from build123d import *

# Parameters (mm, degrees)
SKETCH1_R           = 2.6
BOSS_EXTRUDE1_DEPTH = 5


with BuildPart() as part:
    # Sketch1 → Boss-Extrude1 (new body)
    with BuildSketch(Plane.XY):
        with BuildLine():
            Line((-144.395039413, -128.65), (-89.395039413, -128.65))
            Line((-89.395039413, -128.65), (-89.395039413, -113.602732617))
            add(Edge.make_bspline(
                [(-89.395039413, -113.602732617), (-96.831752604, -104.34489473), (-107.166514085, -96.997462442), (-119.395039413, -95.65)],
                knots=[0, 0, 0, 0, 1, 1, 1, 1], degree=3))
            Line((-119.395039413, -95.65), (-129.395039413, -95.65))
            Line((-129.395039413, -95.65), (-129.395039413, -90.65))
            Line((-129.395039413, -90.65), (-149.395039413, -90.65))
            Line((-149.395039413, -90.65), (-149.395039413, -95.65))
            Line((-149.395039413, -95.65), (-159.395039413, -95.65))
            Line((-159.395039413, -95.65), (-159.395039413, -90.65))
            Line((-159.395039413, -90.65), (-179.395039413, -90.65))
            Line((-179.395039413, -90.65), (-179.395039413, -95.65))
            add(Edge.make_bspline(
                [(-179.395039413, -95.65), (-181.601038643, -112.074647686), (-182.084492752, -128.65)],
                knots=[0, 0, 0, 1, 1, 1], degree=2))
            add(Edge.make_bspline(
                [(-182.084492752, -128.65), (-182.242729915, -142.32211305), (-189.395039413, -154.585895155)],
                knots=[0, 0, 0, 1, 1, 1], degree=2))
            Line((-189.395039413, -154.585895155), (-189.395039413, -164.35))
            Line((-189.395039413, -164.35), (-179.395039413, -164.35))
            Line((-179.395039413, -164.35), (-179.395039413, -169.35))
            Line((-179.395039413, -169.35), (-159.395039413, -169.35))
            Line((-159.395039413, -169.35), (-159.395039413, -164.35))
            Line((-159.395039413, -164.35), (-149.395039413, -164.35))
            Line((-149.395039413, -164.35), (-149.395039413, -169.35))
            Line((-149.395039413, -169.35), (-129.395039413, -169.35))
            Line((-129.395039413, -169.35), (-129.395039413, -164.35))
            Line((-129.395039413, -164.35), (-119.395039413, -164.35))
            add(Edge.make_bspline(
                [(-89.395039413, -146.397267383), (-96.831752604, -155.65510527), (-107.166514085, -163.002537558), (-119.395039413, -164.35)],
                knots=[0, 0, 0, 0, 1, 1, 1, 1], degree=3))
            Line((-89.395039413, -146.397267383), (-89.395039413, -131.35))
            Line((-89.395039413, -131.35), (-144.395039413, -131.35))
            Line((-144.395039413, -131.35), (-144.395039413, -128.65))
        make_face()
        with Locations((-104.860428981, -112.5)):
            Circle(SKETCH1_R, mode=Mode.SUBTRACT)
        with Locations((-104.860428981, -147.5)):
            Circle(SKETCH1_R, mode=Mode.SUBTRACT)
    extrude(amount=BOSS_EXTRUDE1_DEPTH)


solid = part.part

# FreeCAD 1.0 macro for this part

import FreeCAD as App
import Part
import Sketcher

V = App.Vector

doc = App.newDocument("Part")
body = doc.addObject("PartDesign::Body", "Body")

sketch1 = body.newObject("Sketcher::SketchObject", "Sketch")
sketch1.AttachmentSupport = (doc.getObject("XY_Plane"), [""])
sketch1.MapMode = "FlatFace"
sketch1.addGeometry([
    Part.LineSegment(V(-144.395039, -128.65, 0), V(-89.395039, -128.65, 0)),
    Part.LineSegment(V(-89.395039, -128.65, 0), V(-89.395039, -113.602733, 0)),
    Part.BSplineCurve([V(-89.395039, -113.602733, 0), V(-96.831753, -104.344895, 0), V(-107.166514, -96.997462, 0), V(-119.395039, -95.65, 0)], [4, 4], [0, 1], False, 3, [1, 1, 1, 1], False),
    Part.LineSegment(V(-119.395039, -95.65, 0), V(-129.395039, -95.65, 0)),
    Part.LineSegment(V(-129.395039, -95.65, 0), V(-129.395039, -90.65, 0)),
    Part.LineSegment(V(-129.395039, -90.65, 0), V(-149.395039, -90.65, 0)),
    Part.LineSegment(V(-149.395039, -90.65, 0), V(-149.395039, -95.65, 0)),
    Part.LineSegment(V(-149.395039, -95.65, 0), V(-159.395039, -95.65, 0)),
    Part.LineSegment(V(-159.395039, -95.65, 0), V(-159.395039, -90.65, 0)),
    Part.LineSegment(V(-159.395039, -90.65, 0), V(-179.395039, -90.65, 0)),
    Part.LineSegment(V(-179.395039, -90.65, 0), V(-179.395039, -95.65, 0)),
    Part.BSplineCurve([V(-179.395039, -95.65, 0), V(-181.601039, -112.074648, 0), V(-182.084493, -128.65, 0)], [3, 3], [0, 1], False, 2, [1, 1, 1], False),
    Part.BSplineCurve([V(-182.084493, -128.65, 0), V(-182.24273, -142.322113, 0), V(-189.395039, -154.585895, 0)], [3, 3], [0, 1], False, 2, [1, 1, 1], False),
    Part.LineSegment(V(-189.395039, -154.585895, 0), V(-189.395039, -164.35, 0)),
    Part.LineSegment(V(-189.395039, -164.35, 0), V(-179.395039, -164.35, 0)),
    Part.LineSegment(V(-179.395039, -164.35, 0), V(-179.395039, -169.35, 0)),
    Part.LineSegment(V(-179.395039, -169.35, 0), V(-159.395039, -169.35, 0)),
    Part.LineSegment(V(-159.395039, -169.35, 0), V(-159.395039, -164.35, 0)),
    Part.LineSegment(V(-159.395039, -164.35, 0), V(-149.395039, -164.35, 0)),
    Part.LineSegment(V(-149.395039, -164.35, 0), V(-149.395039, -169.35, 0)),
    Part.LineSegment(V(-149.395039, -169.35, 0), V(-129.395039, -169.35, 0)),
    Part.LineSegment(V(-129.395039, -169.35, 0), V(-129.395039, -164.35, 0)),
    Part.LineSegment(V(-129.395039, -164.35, 0), V(-119.395039, -164.35, 0)),
    Part.BSplineCurve([V(-89.395039, -146.397267, 0), V(-96.831753, -155.655105, 0), V(-107.166514, -163.002538, 0), V(-119.395039, -164.35, 0)], [4, 4], [0, 1], False, 3, [1, 1, 1, 1], False),
    Part.LineSegment(V(-89.395039, -146.397267, 0), V(-89.395039, -131.35, 0)),
    Part.LineSegment(V(-89.395039, -131.35, 0), V(-144.395039, -131.35, 0)),
    Part.LineSegment(V(-144.395039, -131.35, 0), V(-144.395039, -128.65, 0)),
    Part.Circle(V(-104.860429, -147.5, 0), V(0, 0, 1), 2.6),
    Part.Circle(V(-104.860429, -112.5, 0), V(0, 0, 1), 2.6),
], False)
sketch1.addConstraint([
    Sketcher.Constraint("Block", 2),
    Sketcher.Constraint("Block", 11),
    Sketcher.Constraint("Block", 12),
    Sketcher.Constraint("Block", 23),
    Sketcher.Constraint("Coincident", 0, 2, 1, 1),
    Sketcher.Constraint("Coincident", 1, 2, 2, 1),
    Sketcher.Constraint("Coincident", 2, 2, 3, 1),
    Sketcher.Constraint("Coincident", 3, 2, 4, 1),
    Sketcher.Constraint("Coincident", 4, 2, 5, 1),
    Sketcher.Constraint("Coincident", 5, 2, 6, 1),
    Sketcher.Constraint("Coincident", 6, 2, 7, 1),
    Sketcher.Constraint("Coincident", 7, 2, 8, 1),
    Sketcher.Constraint("Coincident", 8, 2, 9, 1),
    Sketcher.Constraint("Coincident", 9, 2, 10, 1),
    Sketcher.Constraint("Coincident", 10, 2, 11, 1),
    Sketcher.Constraint("Coincident", 12, 2, 13, 1),
    Sketcher.Constraint("Coincident", 13, 2, 14, 1),
    Sketcher.Constraint("Coincident", 14, 2, 15, 1),
    Sketcher.Constraint("Coincident", 15, 2, 16, 1),
    Sketcher.Constraint("Coincident", 16, 2, 17, 1),
    Sketcher.Constraint("Coincident", 17, 2, 18, 1),
    Sketcher.Constraint("Coincident", 18, 2, 19, 1),
    Sketcher.Constraint("Coincident", 19, 2, 20, 1),
    Sketcher.Constraint("Coincident", 20, 2, 21, 1),
    Sketcher.Constraint("Coincident", 21, 2, 22, 1),
    Sketcher.Constraint("Coincident", 22, 2, 23, 2),
    Sketcher.Constraint("Coincident", 23, 1, 24, 1),
    Sketcher.Constraint("Coincident", 24, 2, 25, 1),
    Sketcher.Constraint("Coincident", 25, 2, 26, 1),
    Sketcher.Constraint("Coincident", 26, 2, 0, 1),
    Sketcher.Constraint("Horizontal", 0),
    Sketcher.Constraint("Vertical", 1),
    Sketcher.Constraint("Horizontal", 3),
    Sketcher.Constraint("Vertical", 4),
    Sketcher.Constraint("Horizontal", 5),
    Sketcher.Constraint("Vertical", 6),
    Sketcher.Constraint("Horizontal", 7),
    Sketcher.Constraint("Vertical", 8),
    Sketcher.Constraint("Horizontal", 9),
    Sketcher.Constraint("Vertical", 10),
    Sketcher.Constraint("Vertical", 13),
    Sketcher.Constraint("Horizontal", 14),
    Sketcher.Constraint("Vertical", 15),
    Sketcher.Constraint("Horizontal", 16),
    Sketcher.Constraint("Vertical", 17),
    Sketcher.Constraint("Horizontal", 18),
    Sketcher.Constraint("Vertical", 19),
    Sketcher.Constraint("Horizontal", 20),
    Sketcher.Constraint("Vertical", 21),
    Sketcher.Constraint("Horizontal", 22),
    Sketcher.Constraint("Vertical", 24),
    Sketcher.Constraint("Horizontal", 25),
    Sketcher.Constraint("Vertical", 26),
    Sketcher.Constraint("Diameter", 27, 5.2),
    Sketcher.Constraint("Diameter", 28, 5.2),
    Sketcher.Constraint("DistanceX", 0, 1, 0, 2, 55.0),
    Sketcher.Constraint("DistanceX", 3, 2, 3, 1, 10.0),
    Sketcher.Constraint("DistanceX", 5, 2, 5, 1, 20.0),
    Sketcher.Constraint("DistanceX", 7, 2, 7, 1, 10.0),
    Sketcher.Constraint("DistanceX", 14, 1, 14, 2, 10.0),
    Sketcher.Constraint("DistanceX", 16, 1, 16, 2, 20.0),
    Sketcher.Constraint("DistanceX", 18, 1, 18, 2, 10.0),
    Sketcher.Constraint("DistanceX", 20, 1, 20, 2, 20.0),
    Sketcher.Constraint("DistanceY", 4, 1, 4, 2, 5.0),
    Sketcher.Constraint("DistanceY", 6, 2, 6, 1, 5.0),
    Sketcher.Constraint("DistanceY", 8, 1, 8, 2, 5.0),
    Sketcher.Constraint("DistanceY", 15, 2, 15, 1, 5.0),
    Sketcher.Constraint("DistanceY", 17, 1, 17, 2, 5.0),
    Sketcher.Constraint("DistanceY", 19, 2, 19, 1, 5.0),
    Sketcher.Constraint("DistanceY", 21, 1, 21, 2, 5.0),
    Sketcher.Constraint("DistanceY", 26, 1, 26, 2, 2.7),
    Sketcher.Constraint("DistanceY", 27, 3, 28, 3, 35.0),
    Sketcher.Constraint("DistanceY", 0, 2, 3, 2, 33.0),
    Sketcher.Constraint("DistanceY", 27, 3, -1, 1, 147.5),
    Sketcher.Constraint("DistanceX", 27, 3, -1, 1, 104.860429),
    Sketcher.Constraint("DistanceX", 28, 3, -1, 1, 104.860429),
])
pad1 = body.newObject("PartDesign::Pad", "Pad")
pad1.Profile = sketch1
pad1.Length = 5

doc.recompute()
